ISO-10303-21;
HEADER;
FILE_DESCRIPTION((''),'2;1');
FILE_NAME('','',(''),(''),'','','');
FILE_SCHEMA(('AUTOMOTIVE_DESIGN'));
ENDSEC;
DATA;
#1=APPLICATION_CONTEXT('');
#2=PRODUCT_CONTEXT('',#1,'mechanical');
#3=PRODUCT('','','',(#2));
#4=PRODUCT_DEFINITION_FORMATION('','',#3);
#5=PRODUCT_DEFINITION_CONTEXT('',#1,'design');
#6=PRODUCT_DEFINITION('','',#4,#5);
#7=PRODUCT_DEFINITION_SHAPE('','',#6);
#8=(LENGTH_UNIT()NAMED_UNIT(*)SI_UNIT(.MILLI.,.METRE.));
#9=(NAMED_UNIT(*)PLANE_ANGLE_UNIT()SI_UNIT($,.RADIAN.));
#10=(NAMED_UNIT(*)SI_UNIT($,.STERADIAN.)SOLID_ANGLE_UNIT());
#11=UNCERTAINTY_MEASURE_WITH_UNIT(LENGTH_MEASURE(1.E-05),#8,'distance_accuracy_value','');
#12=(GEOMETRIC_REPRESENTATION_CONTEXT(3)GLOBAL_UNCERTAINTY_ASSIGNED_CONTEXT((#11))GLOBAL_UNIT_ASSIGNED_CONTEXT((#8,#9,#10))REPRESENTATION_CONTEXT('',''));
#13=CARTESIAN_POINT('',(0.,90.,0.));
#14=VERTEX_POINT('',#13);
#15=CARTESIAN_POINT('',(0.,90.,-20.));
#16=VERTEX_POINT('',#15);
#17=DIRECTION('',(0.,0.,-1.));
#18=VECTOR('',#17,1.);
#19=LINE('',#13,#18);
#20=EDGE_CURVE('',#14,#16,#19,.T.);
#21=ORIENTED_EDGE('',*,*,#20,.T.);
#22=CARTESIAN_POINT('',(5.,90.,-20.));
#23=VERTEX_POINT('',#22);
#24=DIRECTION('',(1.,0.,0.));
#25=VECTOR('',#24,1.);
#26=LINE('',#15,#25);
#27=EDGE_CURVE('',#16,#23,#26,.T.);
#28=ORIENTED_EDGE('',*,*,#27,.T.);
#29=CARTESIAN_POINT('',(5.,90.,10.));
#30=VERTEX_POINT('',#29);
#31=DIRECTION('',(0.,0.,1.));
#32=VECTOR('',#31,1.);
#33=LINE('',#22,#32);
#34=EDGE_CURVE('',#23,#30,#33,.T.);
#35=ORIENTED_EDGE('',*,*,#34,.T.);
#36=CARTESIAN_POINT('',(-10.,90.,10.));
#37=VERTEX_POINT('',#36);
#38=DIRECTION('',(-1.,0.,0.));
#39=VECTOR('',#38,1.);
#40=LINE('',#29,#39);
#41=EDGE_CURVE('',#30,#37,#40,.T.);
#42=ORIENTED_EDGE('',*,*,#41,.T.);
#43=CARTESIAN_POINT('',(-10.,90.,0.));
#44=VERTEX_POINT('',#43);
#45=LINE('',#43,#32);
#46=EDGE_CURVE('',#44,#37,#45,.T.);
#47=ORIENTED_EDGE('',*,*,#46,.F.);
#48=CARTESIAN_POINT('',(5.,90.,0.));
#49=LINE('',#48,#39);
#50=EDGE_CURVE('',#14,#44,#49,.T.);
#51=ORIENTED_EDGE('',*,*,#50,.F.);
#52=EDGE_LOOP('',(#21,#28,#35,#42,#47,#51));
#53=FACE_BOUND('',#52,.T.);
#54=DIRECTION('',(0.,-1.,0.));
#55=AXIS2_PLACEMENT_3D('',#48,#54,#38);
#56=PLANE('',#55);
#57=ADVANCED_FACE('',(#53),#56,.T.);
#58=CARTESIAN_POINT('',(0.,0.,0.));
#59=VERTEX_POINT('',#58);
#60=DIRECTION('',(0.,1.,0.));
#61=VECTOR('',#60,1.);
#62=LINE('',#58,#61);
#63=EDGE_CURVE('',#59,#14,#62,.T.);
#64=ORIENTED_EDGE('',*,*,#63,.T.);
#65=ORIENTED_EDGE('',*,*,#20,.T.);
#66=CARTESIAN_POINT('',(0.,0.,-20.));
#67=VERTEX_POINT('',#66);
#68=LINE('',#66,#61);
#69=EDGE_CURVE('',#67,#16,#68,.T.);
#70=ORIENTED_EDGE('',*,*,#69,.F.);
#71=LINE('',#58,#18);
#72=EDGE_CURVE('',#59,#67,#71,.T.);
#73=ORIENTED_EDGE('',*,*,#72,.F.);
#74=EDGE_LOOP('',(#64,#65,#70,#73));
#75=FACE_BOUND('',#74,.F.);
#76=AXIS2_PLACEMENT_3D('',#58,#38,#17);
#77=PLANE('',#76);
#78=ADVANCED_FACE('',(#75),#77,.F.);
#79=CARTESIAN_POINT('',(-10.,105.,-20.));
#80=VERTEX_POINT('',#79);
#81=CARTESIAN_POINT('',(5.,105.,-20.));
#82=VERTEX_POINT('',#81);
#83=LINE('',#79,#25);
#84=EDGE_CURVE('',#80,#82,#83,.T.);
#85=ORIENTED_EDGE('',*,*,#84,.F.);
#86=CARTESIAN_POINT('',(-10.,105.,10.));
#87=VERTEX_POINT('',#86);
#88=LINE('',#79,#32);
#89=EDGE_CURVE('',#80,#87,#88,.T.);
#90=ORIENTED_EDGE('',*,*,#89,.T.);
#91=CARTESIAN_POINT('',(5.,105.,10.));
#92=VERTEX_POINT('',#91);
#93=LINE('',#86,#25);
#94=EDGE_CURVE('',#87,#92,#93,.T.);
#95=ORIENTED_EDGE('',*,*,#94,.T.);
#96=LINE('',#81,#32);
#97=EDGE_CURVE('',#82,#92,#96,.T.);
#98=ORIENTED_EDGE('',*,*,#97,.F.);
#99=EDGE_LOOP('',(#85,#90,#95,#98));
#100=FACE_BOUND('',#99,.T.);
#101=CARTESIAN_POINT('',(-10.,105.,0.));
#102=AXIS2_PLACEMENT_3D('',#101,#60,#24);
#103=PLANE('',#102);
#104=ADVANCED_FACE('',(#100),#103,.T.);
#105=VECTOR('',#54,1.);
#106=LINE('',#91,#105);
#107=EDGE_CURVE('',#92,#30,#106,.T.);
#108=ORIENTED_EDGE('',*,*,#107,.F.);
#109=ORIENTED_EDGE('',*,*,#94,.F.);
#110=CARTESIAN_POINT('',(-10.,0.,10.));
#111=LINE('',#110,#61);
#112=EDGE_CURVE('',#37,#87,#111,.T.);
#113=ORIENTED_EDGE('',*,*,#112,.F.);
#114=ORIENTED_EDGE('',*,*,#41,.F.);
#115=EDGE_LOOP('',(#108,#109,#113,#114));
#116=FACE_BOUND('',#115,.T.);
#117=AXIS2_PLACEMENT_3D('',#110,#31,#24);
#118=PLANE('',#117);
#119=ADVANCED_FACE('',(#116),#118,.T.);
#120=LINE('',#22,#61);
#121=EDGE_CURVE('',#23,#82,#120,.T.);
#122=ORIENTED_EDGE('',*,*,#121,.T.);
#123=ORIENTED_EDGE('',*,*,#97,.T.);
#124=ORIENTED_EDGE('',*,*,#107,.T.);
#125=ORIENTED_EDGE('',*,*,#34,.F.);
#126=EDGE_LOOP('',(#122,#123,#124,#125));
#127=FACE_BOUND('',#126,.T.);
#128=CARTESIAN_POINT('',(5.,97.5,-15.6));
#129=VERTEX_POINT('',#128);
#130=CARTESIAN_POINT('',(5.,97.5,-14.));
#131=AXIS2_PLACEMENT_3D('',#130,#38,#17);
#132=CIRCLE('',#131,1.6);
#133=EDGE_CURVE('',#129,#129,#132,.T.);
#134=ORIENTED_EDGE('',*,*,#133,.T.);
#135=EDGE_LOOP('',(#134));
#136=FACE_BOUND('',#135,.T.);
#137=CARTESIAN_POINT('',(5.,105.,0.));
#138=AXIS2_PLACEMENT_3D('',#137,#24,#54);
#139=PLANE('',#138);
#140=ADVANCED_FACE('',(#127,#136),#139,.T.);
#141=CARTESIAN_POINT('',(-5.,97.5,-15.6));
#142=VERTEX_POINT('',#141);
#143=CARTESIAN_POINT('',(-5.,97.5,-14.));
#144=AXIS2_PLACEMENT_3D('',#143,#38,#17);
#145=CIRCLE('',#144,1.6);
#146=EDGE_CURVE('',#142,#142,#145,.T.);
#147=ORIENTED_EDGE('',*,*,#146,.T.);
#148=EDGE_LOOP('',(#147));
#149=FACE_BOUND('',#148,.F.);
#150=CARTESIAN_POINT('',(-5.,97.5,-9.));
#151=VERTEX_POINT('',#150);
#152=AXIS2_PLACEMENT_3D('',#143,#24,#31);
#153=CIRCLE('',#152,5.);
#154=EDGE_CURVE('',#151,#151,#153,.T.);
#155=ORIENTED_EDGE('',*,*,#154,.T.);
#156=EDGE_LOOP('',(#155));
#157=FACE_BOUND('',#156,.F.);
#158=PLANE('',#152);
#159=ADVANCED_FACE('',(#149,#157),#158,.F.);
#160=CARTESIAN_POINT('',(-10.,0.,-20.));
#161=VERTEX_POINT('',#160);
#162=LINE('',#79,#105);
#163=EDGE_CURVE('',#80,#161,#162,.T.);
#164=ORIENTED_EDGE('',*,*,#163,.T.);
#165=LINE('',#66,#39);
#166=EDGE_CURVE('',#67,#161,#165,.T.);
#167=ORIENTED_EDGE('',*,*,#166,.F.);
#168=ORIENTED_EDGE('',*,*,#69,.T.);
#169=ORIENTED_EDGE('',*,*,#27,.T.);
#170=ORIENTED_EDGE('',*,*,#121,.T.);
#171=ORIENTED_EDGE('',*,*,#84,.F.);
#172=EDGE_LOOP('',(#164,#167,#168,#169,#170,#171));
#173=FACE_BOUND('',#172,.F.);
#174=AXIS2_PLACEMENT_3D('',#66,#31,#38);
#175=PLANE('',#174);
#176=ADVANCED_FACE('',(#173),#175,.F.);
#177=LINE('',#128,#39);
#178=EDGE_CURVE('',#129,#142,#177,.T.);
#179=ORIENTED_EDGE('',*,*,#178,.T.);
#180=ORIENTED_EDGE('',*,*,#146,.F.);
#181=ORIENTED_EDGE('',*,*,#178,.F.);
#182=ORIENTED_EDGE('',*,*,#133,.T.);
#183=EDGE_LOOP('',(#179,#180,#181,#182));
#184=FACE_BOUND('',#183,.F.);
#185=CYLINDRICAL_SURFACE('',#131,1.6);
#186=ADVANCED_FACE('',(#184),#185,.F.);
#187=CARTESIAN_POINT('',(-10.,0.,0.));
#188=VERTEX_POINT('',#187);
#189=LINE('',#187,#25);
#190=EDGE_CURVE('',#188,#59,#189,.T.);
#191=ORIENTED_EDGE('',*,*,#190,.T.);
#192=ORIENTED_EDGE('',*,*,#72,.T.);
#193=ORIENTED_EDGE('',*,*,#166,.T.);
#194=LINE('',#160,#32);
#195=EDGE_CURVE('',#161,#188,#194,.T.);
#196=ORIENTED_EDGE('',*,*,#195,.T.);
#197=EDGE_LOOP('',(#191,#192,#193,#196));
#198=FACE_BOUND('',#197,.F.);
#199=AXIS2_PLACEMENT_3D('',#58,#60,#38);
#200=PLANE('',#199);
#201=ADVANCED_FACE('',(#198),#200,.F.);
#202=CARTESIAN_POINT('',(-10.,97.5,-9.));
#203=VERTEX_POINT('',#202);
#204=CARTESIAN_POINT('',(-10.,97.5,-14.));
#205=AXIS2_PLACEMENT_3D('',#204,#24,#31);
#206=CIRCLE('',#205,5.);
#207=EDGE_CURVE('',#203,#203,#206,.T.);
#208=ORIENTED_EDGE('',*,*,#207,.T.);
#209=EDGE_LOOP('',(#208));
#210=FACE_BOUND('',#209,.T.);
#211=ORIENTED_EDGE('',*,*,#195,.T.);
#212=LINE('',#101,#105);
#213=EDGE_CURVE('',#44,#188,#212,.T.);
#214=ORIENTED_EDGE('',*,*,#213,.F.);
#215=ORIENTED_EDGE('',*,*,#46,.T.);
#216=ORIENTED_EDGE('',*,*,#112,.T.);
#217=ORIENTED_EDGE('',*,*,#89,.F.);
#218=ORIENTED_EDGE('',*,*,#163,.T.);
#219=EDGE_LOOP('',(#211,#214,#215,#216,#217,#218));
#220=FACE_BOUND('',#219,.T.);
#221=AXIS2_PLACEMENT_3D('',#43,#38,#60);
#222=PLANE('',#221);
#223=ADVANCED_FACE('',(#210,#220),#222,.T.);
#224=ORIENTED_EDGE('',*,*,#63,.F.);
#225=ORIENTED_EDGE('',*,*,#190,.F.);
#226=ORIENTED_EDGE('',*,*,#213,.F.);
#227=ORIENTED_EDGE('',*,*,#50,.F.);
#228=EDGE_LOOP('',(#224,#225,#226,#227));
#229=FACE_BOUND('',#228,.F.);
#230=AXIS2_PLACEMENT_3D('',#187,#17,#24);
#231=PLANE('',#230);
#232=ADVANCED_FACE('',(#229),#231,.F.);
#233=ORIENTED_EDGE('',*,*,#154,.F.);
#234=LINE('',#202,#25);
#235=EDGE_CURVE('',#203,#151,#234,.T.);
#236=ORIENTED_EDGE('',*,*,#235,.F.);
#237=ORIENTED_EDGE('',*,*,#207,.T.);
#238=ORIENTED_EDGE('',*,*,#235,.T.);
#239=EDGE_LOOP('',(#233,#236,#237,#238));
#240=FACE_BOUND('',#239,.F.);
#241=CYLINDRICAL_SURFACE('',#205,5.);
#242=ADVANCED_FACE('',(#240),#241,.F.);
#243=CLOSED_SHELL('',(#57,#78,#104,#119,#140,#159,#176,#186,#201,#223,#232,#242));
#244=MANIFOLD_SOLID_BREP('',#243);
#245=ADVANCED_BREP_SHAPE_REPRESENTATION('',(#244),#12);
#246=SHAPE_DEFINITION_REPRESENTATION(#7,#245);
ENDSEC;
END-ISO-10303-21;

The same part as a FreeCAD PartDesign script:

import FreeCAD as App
import Part
import Sketcher
Q = App.Units.Quantity

doc = App.newDocument("Part")
params = doc.addObject("Spreadsheet::Sheet", "Params")
for row, (alias, value) in enumerate([
    ("sketch1_width", "10 mm"),
    ("sketch1_height", "20 mm"),
    ("pad1_length", "90 mm"),
    ("sketch2_width", "15 mm"),
    ("sketch2_height", "20 mm"),
    ("pad2_length", "15 mm"),
    ("sketch3_width", "15 mm"),
    ("pad3_length", "10 mm"),
    ("sketch4_diameter", "3.2 mm"),
    ("hole_diameter", "3.2 mm"),
    ("sketch5_diameter", "3.2 mm"),
    ("hole2_diameter", "3.2 mm"),
    ("hole2_depth", "30 mm"),
    ("hole2_cbore_diameter", "10 mm"),
    ("hole2_cbore_depth", "5 mm"),
], start=1):
    params.set(f"A{row}", alias)
    params.set(f"B{row}", "=" + value)
    params.setAlias(f"B{row}", alias)

body = doc.addObject("PartDesign::Body", "Body")

# Sketch on XZ plane
sketch1 = doc.addObject("Sketcher::SketchObject", "Sketch")
body.addObject(sketch1)
sketch1.AttachmentSupport = (doc.XZ_Plane, [""])
sketch1.MapMode = "FlatFace"
sketch1.addGeometry(Part.LineSegment(App.Vector(-10, 0, 0), App.Vector(0, 0, 0)), False)
sketch1.addGeometry(Part.LineSegment(App.Vector(0, 0, 0), App.Vector(0, -20, 0)), False)
sketch1.addGeometry(Part.LineSegment(App.Vector(0, -20, 0), App.Vector(-10, -20, 0)), False)
sketch1.addGeometry(Part.LineSegment(App.Vector(-10, -20, 0), App.Vector(-10, 0, 0)), False)
sketch1.addConstraint(Sketcher.Constraint("Coincident", 0, 2, 1, 1))
sketch1.addConstraint(Sketcher.Constraint("Coincident", 1, 2, 2, 1))
sketch1.addConstraint(Sketcher.Constraint("Coincident", 2, 2, 3, 1))
sketch1.addConstraint(Sketcher.Constraint("Coincident", 3, 2, 0, 1))
sketch1.addConstraint(Sketcher.Constraint("Horizontal", 0))
sketch1.addConstraint(Sketcher.Constraint("Vertical", 1))
sketch1.addConstraint(Sketcher.Constraint("Horizontal", 2))
sketch1.addConstraint(Sketcher.Constraint("Vertical", 3))
sketch1.addConstraint(Sketcher.Constraint("Coincident", 0, 2, -1, 1))
sketch1.addConstraint(Sketcher.Constraint("DistanceX", 0, 1, 0, 2, Q("10 mm")))
sketch1.addConstraint(Sketcher.Constraint("DistanceY", 1, 2, 1, 1, Q("20 mm")))
sketch1.setExpression("Constraints[9]", "Params.sketch1_width")
sketch1.setExpression("Constraints[10]", "Params.sketch1_height")
pad1 = doc.addObject("PartDesign::Pad", "Pad")
body.addObject(pad1)
pad1.Profile = sketch1
pad1.setExpression("Length", "Params.pad1_length")
pad1.Reversed = True

# Sketch on XZ plane
sketch2 = doc.addObject("Sketcher::SketchObject", "Sketch001")
body.addObject(sketch2)
sketch2.AttachmentSupport = (doc.XZ_Plane, [""])
sketch2.MapMode = "FlatFace"
sketch2.AttachmentOffset = App.Placement(App.Vector(0, 0, -90), App.Rotation())
sketch2.addGeometry(Part.LineSegment(App.Vector(5, -20, 0), App.Vector(-10, -20, 0)), False)
sketch2.addGeometry(Part.LineSegment(App.Vector(-10, -20, 0), App.Vector(-10, 0, 0)), False)
sketch2.addGeometry(Part.LineSegment(App.Vector(-10, 0, 0), App.Vector(5, 0, 0)), False)
sketch2.addGeometry(Part.LineSegment(App.Vector(5, 0, 0), App.Vector(5, -20, 0)), False)
sketch2.addConstraint(Sketcher.Constraint("Coincident", 0, 2, 1, 1))
sketch2.addConstraint(Sketcher.Constraint("Coincident", 1, 2, 2, 1))
sketch2.addConstraint(Sketcher.Constraint("Coincident", 2, 2, 3, 1))
sketch2.addConstraint(Sketcher.Constraint("Coincident", 3, 2, 0, 1))
sketch2.addConstraint(Sketcher.Constraint("Horizontal", 0))
sketch2.addConstraint(Sketcher.Constraint("Vertical", 1))
sketch2.addConstraint(Sketcher.Constraint("Horizontal", 2))
sketch2.addConstraint(Sketcher.Constraint("Vertical", 3))
sketch2.addConstraint(Sketcher.Constraint("PointOnObject", 1, 2, -1))
sketch2.addConstraint(Sketcher.Constraint("DistanceX", -1, 1, 2, 2, Q("5 mm")))
sketch2.addConstraint(Sketcher.Constraint("DistanceX", 0, 2, 0, 1, Q("15 mm")))
sketch2.addConstraint(Sketcher.Constraint("DistanceY", 1, 1, 1, 2, Q("20 mm")))
sketch2.setExpression("Constraints[10]", "Params.sketch2_width")
sketch2.setExpression("Constraints[11]", "Params.sketch2_height")
pad2 = doc.addObject("PartDesign::Pad", "Pad001")
body.addObject(pad2)
pad2.Profile = sketch2
pad2.setExpression("Length", "Params.pad2_length")
pad2.Reversed = True

# Sketch on XY plane
sketch3 = doc.addObject("Sketcher::SketchObject", "Sketch002")
body.addObject(sketch3)
sketch3.AttachmentSupport = (doc.XY_Plane, [""])
sketch3.MapMode = "FlatFace"
sketch3.addGeometry(Part.LineSegment(App.Vector(-10, 90, 0), App.Vector(5, 90, 0)), False)
sketch3.addGeometry(Part.LineSegment(App.Vector(5, 90, 0), App.Vector(5, 105, 0)), False)
sketch3.addGeometry(Part.LineSegment(App.Vector(5, 105, 0), App.Vector(-10, 105, 0)), False)
sketch3.addGeometry(Part.LineSegment(App.Vector(-10, 105, 0), App.Vector(-10, 90, 0)), False)
sketch3.addConstraint(Sketcher.Constraint("Coincident", 0, 2, 1, 1))
sketch3.addConstraint(Sketcher.Constraint("Coincident", 1, 2, 2, 1))
sketch3.addConstraint(Sketcher.Constraint("Coincident", 2, 2, 3, 1))
sketch3.addConstraint(Sketcher.Constraint("Coincident", 3, 2, 0, 1))
sketch3.addConstraint(Sketcher.Constraint("Horizontal", 0))
sketch3.addConstraint(Sketcher.Constraint("Vertical", 1))
sketch3.addConstraint(Sketcher.Constraint("Horizontal", 2))
sketch3.addConstraint(Sketcher.Constraint("Vertical", 3))
sketch3.addConstraint(Sketcher.Constraint("Equal", 2, 1))
sketch3.addConstraint(Sketcher.Constraint("DistanceX", 0, 1, 0, 2, Q("15 mm")))
sketch3.addConstraint(Sketcher.Constraint("DistanceX", -1, 1, 0, 2, Q("5 mm")))
sketch3.addConstraint(Sketcher.Constraint("DistanceY", -1, 1, 0, 2, Q("90 mm")))
sketch3.setExpression("Constraints[9]", "Params.sketch3_width")
pad3 = doc.addObject("PartDesign::Pad", "Pad002")
body.addObject(pad3)
pad3.Profile = sketch3
pad3.setExpression("Length", "Params.pad3_length")

# Sketch on YZ plane
sketch4 = doc.addObject("Sketcher::SketchObject", "Sketch003")
body.addObject(sketch4)
sketch4.AttachmentSupport = (doc.YZ_Plane, [""])
sketch4.MapMode = "FlatFace"
sketch4.AttachmentOffset = App.Placement(App.Vector(0, 0, 5), App.Rotation())
sketch4.addGeometry(Part.Circle(App.Vector(97.5, -14, 0), App.Vector(0, 0, 1), 1.6), False)
sketch4.addConstraint(Sketcher.Constraint("Diameter", 0, Q("3.2 mm")))
sketch4.addConstraint(Sketcher.Constraint("DistanceY", 0, 3, -1, 1, Q("14 mm")))
sketch4.addConstraint(Sketcher.Constraint("DistanceX", -1, 1, 0, 3, Q("97.5 mm")))
sketch4.setExpression("Constraints[0]", "Params.sketch4_diameter")
doc.recompute()
hole = doc.addObject("PartDesign::Hole", "Hole")
body.addObject(hole)
hole.Profile = sketch4
hole.ThreadType = "None"
hole.setExpression("Diameter", "Params.hole_diameter")
hole.DepthType = "ThroughAll"

# Sketch on YZ plane
sketch5 = doc.addObject("Sketcher::SketchObject", "Sketch004")
body.addObject(sketch5)
sketch5.AttachmentSupport = (doc.YZ_Plane, [""])
sketch5.MapMode = "FlatFace"
sketch5.AttachmentOffset = App.Placement(App.Vector(0, 0, -10), App.Rotation())
sketch5.addGeometry(Part.Circle(App.Vector(97.5, -14, 0), App.Vector(0, 0, 1), 1.6), False)
sketch5.addConstraint(Sketcher.Constraint("Diameter", 0, Q("3.2 mm")))
sketch5.addConstraint(Sketcher.Constraint("DistanceY", 0, 3, -1, 1, Q("14 mm")))
sketch5.addConstraint(Sketcher.Constraint("DistanceX", -1, 1, 0, 3, Q("97.5 mm")))
sketch5.setExpression("Constraints[0]", "Params.sketch5_diameter")
doc.recompute()
hole2 = doc.addObject("PartDesign::Hole", "Hole001")
body.addObject(hole2)
hole2.Profile = sketch5
hole2.ThreadType = "None"
hole2.setExpression("Diameter", "Params.hole2_diameter")
hole2.DepthType = "Dimension"
hole2.setExpression("Depth", "Params.hole2_depth")
hole2.DrillPoint = "Flat"
hole2.HoleCutType = "Counterbore"
hole2.setExpression("HoleCutDiameter", "Params.hole2_cbore_diameter")
hole2.setExpression("HoleCutDepth", "Params.hole2_cbore_depth")
hole2.Reversed = True

doc.recompute()
